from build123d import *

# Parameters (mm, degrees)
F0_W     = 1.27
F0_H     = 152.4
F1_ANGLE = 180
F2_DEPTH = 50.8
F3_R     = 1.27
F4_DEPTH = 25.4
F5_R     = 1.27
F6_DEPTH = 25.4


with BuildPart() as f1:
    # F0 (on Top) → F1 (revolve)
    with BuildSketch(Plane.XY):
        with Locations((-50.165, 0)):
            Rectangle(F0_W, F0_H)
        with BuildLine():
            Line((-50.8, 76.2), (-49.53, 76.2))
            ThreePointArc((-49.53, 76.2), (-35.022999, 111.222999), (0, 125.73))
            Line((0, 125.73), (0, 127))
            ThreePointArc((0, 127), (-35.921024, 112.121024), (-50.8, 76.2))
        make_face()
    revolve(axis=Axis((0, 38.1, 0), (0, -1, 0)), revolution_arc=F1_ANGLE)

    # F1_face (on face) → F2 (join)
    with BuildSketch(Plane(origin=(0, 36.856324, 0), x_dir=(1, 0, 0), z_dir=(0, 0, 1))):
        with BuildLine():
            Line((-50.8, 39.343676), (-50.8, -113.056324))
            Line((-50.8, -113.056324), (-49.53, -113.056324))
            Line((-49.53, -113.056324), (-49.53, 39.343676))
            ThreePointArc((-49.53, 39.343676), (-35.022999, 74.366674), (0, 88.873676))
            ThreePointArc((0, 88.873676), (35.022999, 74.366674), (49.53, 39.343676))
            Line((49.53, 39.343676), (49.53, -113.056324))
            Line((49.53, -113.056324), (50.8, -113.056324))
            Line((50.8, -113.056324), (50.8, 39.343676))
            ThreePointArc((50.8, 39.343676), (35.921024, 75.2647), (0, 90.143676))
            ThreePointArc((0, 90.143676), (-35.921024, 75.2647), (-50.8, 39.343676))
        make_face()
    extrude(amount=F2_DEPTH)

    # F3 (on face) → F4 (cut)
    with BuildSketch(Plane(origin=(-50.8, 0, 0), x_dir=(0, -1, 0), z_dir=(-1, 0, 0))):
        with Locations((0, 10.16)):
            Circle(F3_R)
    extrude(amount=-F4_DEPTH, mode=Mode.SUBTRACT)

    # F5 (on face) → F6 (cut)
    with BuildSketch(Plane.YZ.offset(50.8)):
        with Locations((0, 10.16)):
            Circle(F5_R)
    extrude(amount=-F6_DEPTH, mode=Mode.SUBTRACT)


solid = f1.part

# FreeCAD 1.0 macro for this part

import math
import FreeCAD as App
import Part
import Sketcher
from FreeCAD import Vector
Q = App.Units.Quantity

doc = App.newDocument("Part")
body = doc.addObject("PartDesign::Body", "Body")

# Sketch on XY plane
sketch1 = body.newObject("Sketcher::SketchObject", "Sketch")
sketch1.AttachmentSupport = (doc.getObject("XY_Plane"), [""])
sketch1.MapMode = "FlatFace"
sketch1.addGeometry([
    Part.LineSegment(Vector(-50.8, 76.2, 0), Vector(-50.8, -76.2, 0)),  # 0
    Part.LineSegment(Vector(-50.8, -76.2, 0), Vector(-49.53, -76.2, 0)),  # 1
    Part.LineSegment(Vector(-49.53, -76.2, 0), Vector(-49.53, 76.2, 0)),  # 2
    Part.ArcOfCircle(Part.Circle(Vector(0, 76.2, 0), Vector(0, 0, 1), 49.53), math.radians(89.999999), math.radians(180.000001)),  # 3
    Part.LineSegment(Vector(0, 125.73, 0), Vector(0, 127, 0)),  # 4
    Part.ArcOfCircle(Part.Circle(Vector(0.000002, 76.199998, 0), Vector(0, 0, 1), 50.800002), math.radians(90.000002), math.radians(179.999998)),  # 5
], False)
sketch1.addConstraint([
    Sketcher.Constraint("Coincident", 0, 2, 1, 1),
    Sketcher.Constraint("Coincident", 1, 2, 2, 1),
    Sketcher.Constraint("Tangent", 2, 2, 3, 2),
    Sketcher.Constraint("Coincident", 3, 1, 4, 1),
    Sketcher.Constraint("Coincident", 4, 2, 5, 1),
    Sketcher.Constraint("Tangent", 5, 2, 0, 1),
    Sketcher.Constraint("Vertical", 0),
    Sketcher.Constraint("Horizontal", 1),
    Sketcher.Constraint("Vertical", 2),
    Sketcher.Constraint("Vertical", 4),
    Sketcher.Constraint("Coincident", 5, 3, 3, 3),
    Sketcher.Constraint("PointOnObject", 3, 3, -2),
    Sketcher.Constraint("PointOnObject", 3, 1, -2),
    Sketcher.Constraint("Radius", 5, Q("2.0000001 in")),
    Sketcher.Constraint("DistanceY", 0, 2, 0, 1, Q("6 in")),
    Sketcher.Constraint("Radius", 3, Q("1.95 in")),
    Sketcher.Constraint("DistanceY", -1, 1, 3, 3, Q("3 in")),
])
revolution = body.newObject("PartDesign::Revolution", "Revolution")
revolution.Profile = sketch1
revolution.ReferenceAxis = (sketch1, ["V_Axis"])
revolution.Angle = 180
revolution.Reversed = True

# Sketch on XY plane
sketch2 = body.newObject("Sketcher::SketchObject", "Sketch001")
sketch2.AttachmentSupport = (doc.getObject("XY_Plane"), [""])
sketch2.MapMode = "FlatFace"
sketch2.addGeometry([
    Part.LineSegment(Vector(-50.8, 76.2, 0), Vector(-50.8, -76.2, 0)),  # 0
    Part.LineSegment(Vector(-50.8, -76.2, 0), Vector(-49.53, -76.2, 0)),  # 1
    Part.LineSegment(Vector(-49.53, -76.2, 0), Vector(-49.53, 76.2, 0)),  # 2
    Part.ArcOfCircle(Part.Circle(Vector(0.000001, 76.199999, 0), Vector(0, 0, 1), 49.530001), math.radians(90.000001), math.radians(179.999999)),  # 3
    Part.ArcOfCircle(Part.Circle(Vector(-0.000001, 76.199999, 0), Vector(0, 0, 1), 49.530001), math.radians(0.000001), math.radians(89.999999)),  # 4
    Part.LineSegment(Vector(49.53, 76.2, 0), Vector(49.53, -76.2, 0)),  # 5
    Part.LineSegment(Vector(49.53, -76.2, 0), Vector(50.8, -76.2, 0)),  # 6
    Part.LineSegment(Vector(50.8, -76.2, 0), Vector(50.8, 76.2, 0)),  # 7
    Part.ArcOfCircle(Part.Circle(Vector(-0.000002, 76.199998, 0), Vector(0, 0, 1), 50.800002), math.radians(0.000002), math.radians(89.999998)),  # 8
    Part.ArcOfCircle(Part.Circle(Vector(0.000002, 76.199998, 0), Vector(0, 0, 1), 50.800002), math.radians(90.000002), math.radians(179.999998)),  # 9
], False)
sketch2.addConstraint([
    Sketcher.Constraint("Coincident", 0, 2, 1, 1),
    Sketcher.Constraint("Coincident", 1, 2, 2, 1),
    Sketcher.Constraint("Tangent", 2, 2, 3, 2),
    Sketcher.Constraint("Tangent", 3, 1, 4, 2),
    Sketcher.Constraint("Tangent", 4, 1, 5, 1),
    Sketcher.Constraint("Coincident", 5, 2, 6, 1),
    Sketcher.Constraint("Coincident", 6, 2, 7, 1),
    Sketcher.Constraint("Tangent", 7, 2, 8, 1),
    Sketcher.Constraint("Tangent", 8, 2, 9, 1),
    Sketcher.Constraint("Tangent", 9, 2, 0, 1),
    Sketcher.Constraint("Vertical", 0),
    Sketcher.Constraint("Horizontal", 1),
    Sketcher.Constraint("Vertical", 2),
    Sketcher.Constraint("Vertical", 5),
    Sketcher.Constraint("Horizontal", 6),
    Sketcher.Constraint("Vertical", 7),
    Sketcher.Constraint("Coincident", 8, 3, 3, 3),
    Sketcher.Constraint("Equal", 3, 4),
    Sketcher.Constraint("Equal", 8, 9),
    Sketcher.Constraint("Symmetric", 1, 2, 4, 1, -1, 1),
    Sketcher.Constraint("PointOnObject", 3, 1, -2),
    Sketcher.Constraint("PointOnObject", 8, 2, -2),
    Sketcher.Constraint("Horizontal", 1, 2, 5, 2),
    Sketcher.Constraint("Radius", 8, Q("2.0000001 in")),
    Sketcher.Constraint("DistanceY", 0, 2, 0, 1, Q("6 in")),
    Sketcher.Constraint("Radius", 3, Q("1.9500001 in")),
])
pad1 = body.newObject("PartDesign::Pad", "Pad")
pad1.Profile = sketch2
pad1.Length = Q("2 in")

# Sketch on YZ plane
sketch3 = body.newObject("Sketcher::SketchObject", "Sketch002")
sketch3.AttachmentSupport = (doc.getObject("YZ_Plane"), [""])
sketch3.MapMode = "FlatFace"
sketch3.AttachmentOffset = App.Placement(Vector(0, 0, -2 * 25.4), App.Rotation())
sketch3.addGeometry(Part.Circle(Vector(0, 10.16, 0), Vector(0, 0, 1), 1.27), False)
sketch3.addConstraint([
    Sketcher.Constraint("PointOnObject", 0, 3, -2),
    Sketcher.Constraint("Diameter", 0, Q("0.1 in")),
    Sketcher.Constraint("DistanceY", -1, 1, 0, 3, Q("0.4 in")),
])
pocket1 = body.newObject("PartDesign::Pocket", "Pocket")
pocket1.Profile = sketch3
pocket1.Length = Q("1 in")
pocket1.Reversed = True

# Sketch on YZ plane
sketch4 = body.newObject("Sketcher::SketchObject", "Sketch003")
sketch4.AttachmentSupport = (doc.getObject("YZ_Plane"), [""])
sketch4.MapMode = "FlatFace"
sketch4.AttachmentOffset = App.Placement(Vector(0, 0, 2 * 25.4), App.Rotation())
sketch4.addGeometry(Part.Circle(Vector(0, 10.16, 0), Vector(0, 0, 1), 1.27), False)
sketch4.addConstraint([
    Sketcher.Constraint("PointOnObject", 0, 3, -2),
    Sketcher.Constraint("Diameter", 0, Q("0.1 in")),
    Sketcher.Constraint("DistanceY", -1, 1, 0, 3, Q("0.4 in")),
])
pocket2 = body.newObject("PartDesign::Pocket", "Pocket001")
pocket2.Profile = sketch4
pocket2.Length = Q("1 in")

doc.recompute()
